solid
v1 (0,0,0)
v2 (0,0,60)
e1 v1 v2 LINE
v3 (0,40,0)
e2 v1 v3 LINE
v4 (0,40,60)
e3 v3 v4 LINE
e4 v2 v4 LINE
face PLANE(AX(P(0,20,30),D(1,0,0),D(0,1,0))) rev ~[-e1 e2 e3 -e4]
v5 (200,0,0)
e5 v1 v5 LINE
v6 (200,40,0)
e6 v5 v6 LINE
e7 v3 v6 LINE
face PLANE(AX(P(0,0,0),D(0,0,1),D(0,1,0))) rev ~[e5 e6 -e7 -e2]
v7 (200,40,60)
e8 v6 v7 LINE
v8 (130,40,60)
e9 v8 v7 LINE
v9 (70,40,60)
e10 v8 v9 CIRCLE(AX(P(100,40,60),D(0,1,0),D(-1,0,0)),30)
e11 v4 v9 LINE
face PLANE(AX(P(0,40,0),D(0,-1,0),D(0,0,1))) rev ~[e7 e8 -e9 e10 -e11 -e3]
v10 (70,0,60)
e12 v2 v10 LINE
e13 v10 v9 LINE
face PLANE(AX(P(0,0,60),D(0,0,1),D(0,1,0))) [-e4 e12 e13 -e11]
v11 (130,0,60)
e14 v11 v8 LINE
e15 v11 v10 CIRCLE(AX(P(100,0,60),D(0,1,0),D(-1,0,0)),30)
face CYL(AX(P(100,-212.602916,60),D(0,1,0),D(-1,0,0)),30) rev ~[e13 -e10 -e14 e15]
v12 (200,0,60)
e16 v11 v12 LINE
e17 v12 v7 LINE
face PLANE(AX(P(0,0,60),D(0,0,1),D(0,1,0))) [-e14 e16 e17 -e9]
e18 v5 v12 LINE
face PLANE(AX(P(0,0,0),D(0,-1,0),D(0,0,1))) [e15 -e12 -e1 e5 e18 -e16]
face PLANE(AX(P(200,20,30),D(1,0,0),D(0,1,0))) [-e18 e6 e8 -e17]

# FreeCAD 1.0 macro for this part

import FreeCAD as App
import Part
import Sketcher
Q = App.Units.Quantity

doc = App.newDocument("Part")
body = doc.addObject("PartDesign::Body", "Body")

sketch1 = doc.addObject("Sketcher::SketchObject", "Sketch")
body.addObject(sketch1)
sketch1.AttachmentSupport = (doc.YZ_Plane, [""])
sketch1.MapMode = "FlatFace"
sketch1.addGeometry(Part.LineSegment(App.Vector(0, 60, 0), App.Vector(0, 0, 0)), False)
sketch1.addGeometry(Part.LineSegment(App.Vector(0, 0, 0), App.Vector(40, 0, 0)), False)
sketch1.addGeometry(Part.LineSegment(App.Vector(40, 0, 0), App.Vector(40, 60, 0)), False)
sketch1.addGeometry(Part.LineSegment(App.Vector(40, 60, 0), App.Vector(0, 60, 0)), False)
sketch1.addConstraint(Sketcher.Constraint("Coincident", 0, 2, 1, 1))
sketch1.addConstraint(Sketcher.Constraint("Coincident", 1, 2, 2, 1))
sketch1.addConstraint(Sketcher.Constraint("Coincident", 2, 2, 3, 1))
sketch1.addConstraint(Sketcher.Constraint("Coincident", 3, 2, 0, 1))
sketch1.addConstraint(Sketcher.Constraint("Vertical", 0))
sketch1.addConstraint(Sketcher.Constraint("Horizontal", 1))
sketch1.addConstraint(Sketcher.Constraint("Vertical", 2))
sketch1.addConstraint(Sketcher.Constraint("Horizontal", 3))
sketch1.addConstraint(Sketcher.Constraint("Coincident", 0, 2, -1, 1))
sketch1.addConstraint(Sketcher.Constraint("DistanceX", 1, 1, 1, 2, Q("40 mm")))
sketch1.addConstraint(Sketcher.Constraint("DistanceY", 0, 2, 0, 1, Q("60 mm")))
pad1 = doc.addObject("PartDesign::Pad", "Pad")
body.addObject(pad1)
pad1.Profile = sketch1
pad1.Length = 200

sketch2 = doc.addObject("Sketcher::SketchObject", "Sketch001")
body.addObject(sketch2)
sketch2.AttachmentSupport = (doc.XZ_Plane, [""])
sketch2.MapMode = "FlatFace"
sketch2.addGeometry(Part.Circle(App.Vector(100, 60, 0), App.Vector(0, 0, 1), 30), False)
sketch2.addConstraint(Sketcher.Constraint("Diameter", 0, Q("60 mm")))
sketch2.addConstraint(Sketcher.Constraint("DistanceX", -1, 1, 0, 3, Q("100 mm")))
sketch2.addConstraint(Sketcher.Constraint("DistanceY", -1, 1, 0, 3, Q("60 mm")))
doc.recompute()
hole = doc.addObject("PartDesign::Hole", "Hole")
body.addObject(hole)
hole.Profile = sketch2
hole.ThreadType = "None"
hole.Diameter = 60
hole.DepthType = "ThroughAll"

doc.recompute()
